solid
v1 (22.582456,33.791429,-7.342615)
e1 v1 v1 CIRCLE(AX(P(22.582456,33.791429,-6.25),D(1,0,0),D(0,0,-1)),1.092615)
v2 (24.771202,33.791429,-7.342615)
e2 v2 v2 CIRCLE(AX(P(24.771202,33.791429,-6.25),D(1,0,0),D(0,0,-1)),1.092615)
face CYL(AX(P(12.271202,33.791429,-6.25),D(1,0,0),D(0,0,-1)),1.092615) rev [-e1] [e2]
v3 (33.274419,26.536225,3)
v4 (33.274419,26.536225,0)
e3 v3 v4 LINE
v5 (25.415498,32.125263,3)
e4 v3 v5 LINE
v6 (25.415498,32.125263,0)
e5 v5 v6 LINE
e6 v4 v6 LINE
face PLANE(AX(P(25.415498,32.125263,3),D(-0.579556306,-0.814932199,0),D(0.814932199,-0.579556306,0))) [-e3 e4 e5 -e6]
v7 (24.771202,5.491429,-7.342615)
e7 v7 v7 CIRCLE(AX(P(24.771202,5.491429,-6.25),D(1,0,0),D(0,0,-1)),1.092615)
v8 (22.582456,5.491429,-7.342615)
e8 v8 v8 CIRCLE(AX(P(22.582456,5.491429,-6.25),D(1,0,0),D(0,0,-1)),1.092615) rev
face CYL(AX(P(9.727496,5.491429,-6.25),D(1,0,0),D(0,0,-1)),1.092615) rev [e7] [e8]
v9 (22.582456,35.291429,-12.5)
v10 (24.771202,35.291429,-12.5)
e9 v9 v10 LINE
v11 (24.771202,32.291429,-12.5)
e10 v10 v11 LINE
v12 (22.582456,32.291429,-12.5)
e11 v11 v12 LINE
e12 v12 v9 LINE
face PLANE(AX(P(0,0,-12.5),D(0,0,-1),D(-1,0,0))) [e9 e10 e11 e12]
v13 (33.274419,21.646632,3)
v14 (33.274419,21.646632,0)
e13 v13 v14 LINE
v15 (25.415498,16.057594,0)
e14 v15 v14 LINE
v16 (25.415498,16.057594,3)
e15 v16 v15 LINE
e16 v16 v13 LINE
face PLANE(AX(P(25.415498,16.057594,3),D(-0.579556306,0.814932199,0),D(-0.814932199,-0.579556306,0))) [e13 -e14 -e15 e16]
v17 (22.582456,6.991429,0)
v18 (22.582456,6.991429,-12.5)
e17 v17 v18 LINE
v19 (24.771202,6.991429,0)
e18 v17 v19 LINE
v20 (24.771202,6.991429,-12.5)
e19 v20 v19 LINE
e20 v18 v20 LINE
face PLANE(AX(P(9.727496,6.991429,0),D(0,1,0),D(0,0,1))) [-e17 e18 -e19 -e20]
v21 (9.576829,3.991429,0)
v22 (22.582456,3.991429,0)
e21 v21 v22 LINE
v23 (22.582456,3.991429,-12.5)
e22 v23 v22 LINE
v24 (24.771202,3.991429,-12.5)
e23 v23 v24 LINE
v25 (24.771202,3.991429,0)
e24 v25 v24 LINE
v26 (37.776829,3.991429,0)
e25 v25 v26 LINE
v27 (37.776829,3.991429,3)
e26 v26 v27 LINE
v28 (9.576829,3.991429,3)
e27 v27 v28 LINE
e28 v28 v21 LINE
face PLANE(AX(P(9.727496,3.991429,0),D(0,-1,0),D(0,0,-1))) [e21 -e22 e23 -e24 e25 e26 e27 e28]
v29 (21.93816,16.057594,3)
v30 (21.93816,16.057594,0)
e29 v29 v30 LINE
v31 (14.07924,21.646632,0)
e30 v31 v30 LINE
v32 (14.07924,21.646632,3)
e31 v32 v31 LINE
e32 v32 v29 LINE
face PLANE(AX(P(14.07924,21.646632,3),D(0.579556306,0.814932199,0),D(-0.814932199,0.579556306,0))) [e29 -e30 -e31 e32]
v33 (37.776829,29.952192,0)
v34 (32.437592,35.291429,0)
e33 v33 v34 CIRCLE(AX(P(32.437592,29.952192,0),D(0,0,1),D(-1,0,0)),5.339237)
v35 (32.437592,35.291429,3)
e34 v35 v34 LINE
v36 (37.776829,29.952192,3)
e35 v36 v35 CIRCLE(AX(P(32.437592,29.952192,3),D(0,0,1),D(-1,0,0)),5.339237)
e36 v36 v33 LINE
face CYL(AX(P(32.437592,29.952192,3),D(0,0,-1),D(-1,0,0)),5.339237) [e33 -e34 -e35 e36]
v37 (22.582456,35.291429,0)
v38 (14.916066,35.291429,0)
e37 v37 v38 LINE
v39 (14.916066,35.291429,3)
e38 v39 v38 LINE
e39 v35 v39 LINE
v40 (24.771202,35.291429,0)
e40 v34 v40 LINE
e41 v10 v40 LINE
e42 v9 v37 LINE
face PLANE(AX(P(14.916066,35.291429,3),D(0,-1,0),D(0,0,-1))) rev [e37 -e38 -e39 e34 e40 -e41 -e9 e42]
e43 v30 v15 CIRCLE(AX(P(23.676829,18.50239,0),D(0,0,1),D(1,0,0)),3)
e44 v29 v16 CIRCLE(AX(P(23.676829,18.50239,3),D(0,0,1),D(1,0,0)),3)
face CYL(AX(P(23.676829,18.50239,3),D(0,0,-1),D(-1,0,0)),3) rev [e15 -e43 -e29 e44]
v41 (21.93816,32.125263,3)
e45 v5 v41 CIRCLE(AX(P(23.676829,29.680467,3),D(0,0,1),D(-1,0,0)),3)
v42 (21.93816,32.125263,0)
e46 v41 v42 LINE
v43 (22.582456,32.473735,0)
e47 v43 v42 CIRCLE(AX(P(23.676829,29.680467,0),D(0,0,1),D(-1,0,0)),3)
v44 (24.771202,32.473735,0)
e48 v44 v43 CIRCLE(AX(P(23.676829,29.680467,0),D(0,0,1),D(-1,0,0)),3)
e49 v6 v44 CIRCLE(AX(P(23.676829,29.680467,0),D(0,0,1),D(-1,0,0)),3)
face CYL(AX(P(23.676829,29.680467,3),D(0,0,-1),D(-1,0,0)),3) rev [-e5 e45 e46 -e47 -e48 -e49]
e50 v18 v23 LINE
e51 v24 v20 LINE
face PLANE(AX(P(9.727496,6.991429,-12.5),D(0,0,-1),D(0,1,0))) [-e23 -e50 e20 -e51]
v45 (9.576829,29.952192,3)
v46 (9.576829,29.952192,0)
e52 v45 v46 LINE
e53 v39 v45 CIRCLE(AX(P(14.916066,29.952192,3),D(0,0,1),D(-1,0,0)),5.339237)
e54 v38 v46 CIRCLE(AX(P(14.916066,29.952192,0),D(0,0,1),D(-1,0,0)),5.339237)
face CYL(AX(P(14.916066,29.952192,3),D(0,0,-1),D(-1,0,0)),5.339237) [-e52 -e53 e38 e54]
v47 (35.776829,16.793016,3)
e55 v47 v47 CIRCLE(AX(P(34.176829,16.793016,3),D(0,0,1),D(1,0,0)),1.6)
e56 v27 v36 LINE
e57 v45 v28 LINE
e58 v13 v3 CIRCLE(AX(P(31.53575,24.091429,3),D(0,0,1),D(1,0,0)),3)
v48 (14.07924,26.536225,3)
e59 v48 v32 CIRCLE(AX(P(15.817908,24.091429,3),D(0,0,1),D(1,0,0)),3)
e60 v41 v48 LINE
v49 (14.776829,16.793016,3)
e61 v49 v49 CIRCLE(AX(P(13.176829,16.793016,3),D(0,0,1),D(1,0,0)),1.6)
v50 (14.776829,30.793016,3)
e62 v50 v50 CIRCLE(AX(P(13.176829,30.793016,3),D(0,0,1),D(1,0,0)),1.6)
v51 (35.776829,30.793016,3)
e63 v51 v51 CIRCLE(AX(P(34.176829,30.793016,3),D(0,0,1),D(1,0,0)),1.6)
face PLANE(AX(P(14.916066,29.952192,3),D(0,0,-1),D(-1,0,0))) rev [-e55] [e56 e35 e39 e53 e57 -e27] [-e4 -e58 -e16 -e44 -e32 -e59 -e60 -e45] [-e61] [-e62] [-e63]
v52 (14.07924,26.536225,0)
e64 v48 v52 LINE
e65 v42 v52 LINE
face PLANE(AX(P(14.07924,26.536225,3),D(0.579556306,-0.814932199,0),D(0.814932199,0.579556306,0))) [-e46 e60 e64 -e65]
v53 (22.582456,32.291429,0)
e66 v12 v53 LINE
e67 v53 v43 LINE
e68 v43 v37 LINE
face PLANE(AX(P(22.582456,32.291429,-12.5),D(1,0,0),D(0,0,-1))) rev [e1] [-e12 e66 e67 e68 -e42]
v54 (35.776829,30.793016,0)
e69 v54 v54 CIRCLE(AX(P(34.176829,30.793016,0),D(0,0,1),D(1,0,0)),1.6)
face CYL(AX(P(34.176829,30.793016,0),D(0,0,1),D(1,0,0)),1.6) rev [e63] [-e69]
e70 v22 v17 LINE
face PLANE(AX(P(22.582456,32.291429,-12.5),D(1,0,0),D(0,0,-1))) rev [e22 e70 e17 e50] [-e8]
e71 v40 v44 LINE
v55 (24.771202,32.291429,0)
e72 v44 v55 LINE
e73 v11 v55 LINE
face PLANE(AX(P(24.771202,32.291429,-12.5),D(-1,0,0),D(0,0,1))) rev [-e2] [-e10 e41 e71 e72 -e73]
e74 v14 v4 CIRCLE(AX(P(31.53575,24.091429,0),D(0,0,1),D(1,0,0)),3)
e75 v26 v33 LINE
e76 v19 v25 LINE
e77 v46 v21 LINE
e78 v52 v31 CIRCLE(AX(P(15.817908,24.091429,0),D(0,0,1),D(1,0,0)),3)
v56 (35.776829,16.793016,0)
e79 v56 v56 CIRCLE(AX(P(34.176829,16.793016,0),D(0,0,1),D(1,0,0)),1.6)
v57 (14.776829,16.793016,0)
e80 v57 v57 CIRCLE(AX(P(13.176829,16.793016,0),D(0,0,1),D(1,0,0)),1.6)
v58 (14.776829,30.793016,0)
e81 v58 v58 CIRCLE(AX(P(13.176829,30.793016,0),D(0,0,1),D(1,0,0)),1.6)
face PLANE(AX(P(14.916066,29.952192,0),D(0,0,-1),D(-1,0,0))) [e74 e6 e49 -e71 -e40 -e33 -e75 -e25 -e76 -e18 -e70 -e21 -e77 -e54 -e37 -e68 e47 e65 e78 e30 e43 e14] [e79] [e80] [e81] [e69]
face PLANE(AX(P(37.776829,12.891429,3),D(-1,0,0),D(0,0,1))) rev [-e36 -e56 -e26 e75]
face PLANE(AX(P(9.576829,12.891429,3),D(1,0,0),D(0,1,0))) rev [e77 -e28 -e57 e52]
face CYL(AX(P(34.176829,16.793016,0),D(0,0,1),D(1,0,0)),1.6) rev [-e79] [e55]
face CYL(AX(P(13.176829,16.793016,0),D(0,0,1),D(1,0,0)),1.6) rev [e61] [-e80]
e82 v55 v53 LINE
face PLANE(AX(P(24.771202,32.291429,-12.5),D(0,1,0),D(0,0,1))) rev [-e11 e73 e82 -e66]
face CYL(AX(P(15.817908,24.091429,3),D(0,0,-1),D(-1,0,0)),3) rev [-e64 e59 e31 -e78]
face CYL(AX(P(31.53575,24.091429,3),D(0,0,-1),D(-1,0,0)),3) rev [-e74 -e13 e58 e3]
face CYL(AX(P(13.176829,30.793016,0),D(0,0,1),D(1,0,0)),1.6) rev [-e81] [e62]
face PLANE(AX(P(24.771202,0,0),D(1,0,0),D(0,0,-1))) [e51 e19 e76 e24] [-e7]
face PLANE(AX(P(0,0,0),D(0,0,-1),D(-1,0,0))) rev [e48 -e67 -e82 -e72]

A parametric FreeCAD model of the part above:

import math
import FreeCAD as App
import Part
import Sketcher
from FreeCAD import Vector
Q = App.Units.Quantity

doc = App.newDocument("Part")
params = doc.addObject("Spreadsheet::Sheet", "Params")
for row, (alias, value) in enumerate([
    ("sketch1_radius", "3 mm"),
    ("sketch1_width", "28.2 mm"),
    ("pad1_length", "3 mm"),
    ("sketch2_diameter", "3.2 mm"),
    ("pocket1_length", "3 mm"),
    ("sketch3_height", "3 mm"),
    ("pad2_length", "12.5 mm"),
    ("pocket2_length", "12.5 mm"),
    ("sketch5_width", "3 mm"),
    ("sketch5_height", "12.5 mm"),
    ("pad3_length", "2.188746 mm"),
    ("sketch6_height", "3 mm"),
    ("sketch6_width", "28.2 mm"),
    ("pad4_length", "8.9 mm"),
], start=1):
    params.set(f"A{row}", alias)
    params.set(f"B{row}", "=" + value)
    params.setAlias(f"B{row}", alias)

body = doc.addObject("PartDesign::Body", "Body")

# Sketch on XY plane
sketch1 = body.newObject("Sketcher::SketchObject", "Sketch")
sketch1.AttachmentSupport = (doc.getObject("XY_Plane"), [""])
sketch1.MapMode = "FlatFace"
sketch1.addGeometry(Part.LineSegment(Vector(9.6, 12.9, 0), Vector(37.8, 12.9, 0)), False)
sketch1.addGeometry(Part.LineSegment(Vector(37.8, 12.9, 0), Vector(37.8, 30, 0)), False)
sketch1.addGeometry(Part.ArcOfCircle(Part.Circle(Vector(32.4, 30, 0), Vector(0, 0, 1), 5.3), math.radians(0), math.radians(90)), False)
sketch1.addGeometry(Part.LineSegment(Vector(32.4, 35.3, 0), Vector(14.9, 35.3, 0)), False)
sketch1.addGeometry(Part.ArcOfCircle(Part.Circle(Vector(14.9, 30, 0), Vector(0, 0, 1), 5.3), math.radians(90), math.radians(180)), False)
sketch1.addGeometry(Part.LineSegment(Vector(9.6, 30, 0), Vector(9.6, 12.9, 0)), False)
sketch1.addGeometry(Part.LineSegment(Vector(21.9, 16.1, 0), Vector(14.1, 21.6, 0)), False)
sketch1.addGeometry(Part.ArcOfCircle(Part.Circle(Vector(15.8, 24.1, 0), Vector(0, 0, 1), 3), math.radians(125), math.radians(235)), False)
sketch1.addGeometry(Part.LineSegment(Vector(14.1, 26.5, 0), Vector(21.9, 32.1, 0)), False)
sketch1.addGeometry(Part.ArcOfCircle(Part.Circle(Vector(23.7, 29.7, 0), Vector(0, 0, 1), 3), math.radians(55), math.radians(125)), False)
sketch1.addGeometry(Part.LineSegment(Vector(25.4, 32.1, 0), Vector(33.3, 26.5, 0)), False)
sketch1.addGeometry(Part.ArcOfCircle(Part.Circle(Vector(31.5, 24.1, 0), Vector(0, 0, 1), 3), math.radians(-55), math.radians(55)), False)
sketch1.addGeometry(Part.LineSegment(Vector(33.3, 21.6, 0), Vector(25.4, 16.1, 0)), False)
sketch1.addGeometry(Part.ArcOfCircle(Part.Circle(Vector(23.7, 18.5, 0), Vector(0, 0, 1), 3), math.radians(-125), math.radians(-55)), False)
sketch1.addConstraint(Sketcher.Constraint("Coincident", 0, 2, 1, 1))
sketch1.addConstraint(Sketcher.Constraint("Tangent", 1, 2, 2, 1))
sketch1.addConstraint(Sketcher.Constraint("Tangent", 2, 2, 3, 1))
sketch1.addConstraint(Sketcher.Constraint("Tangent", 3, 2, 4, 1))
sketch1.addConstraint(Sketcher.Constraint("Tangent", 4, 2, 5, 1))
sketch1.addConstraint(Sketcher.Constraint("Coincident", 5, 2, 0, 1))
sketch1.addConstraint(Sketcher.Constraint("Tangent", 6, 2, 7, 2))
sketch1.addConstraint(Sketcher.Constraint("Tangent", 7, 1, 8, 1))
sketch1.addConstraint(Sketcher.Constraint("Tangent", 8, 2, 9, 2))
sketch1.addConstraint(Sketcher.Constraint("Tangent", 9, 1, 10, 1))
sketch1.addConstraint(Sketcher.Constraint("Tangent", 10, 2, 11, 2))
sketch1.addConstraint(Sketcher.Constraint("Tangent", 11, 1, 12, 1))
sketch1.addConstraint(Sketcher.Constraint("Tangent", 12, 2, 13, 2))
sketch1.addConstraint(Sketcher.Constraint("Tangent", 13, 1, 6, 1))
sketch1.addConstraint(Sketcher.Constraint("Horizontal", 0))
sketch1.addConstraint(Sketcher.Constraint("Vertical", 1))
sketch1.addConstraint(Sketcher.Constraint("Horizontal", 3))
sketch1.addConstraint(Sketcher.Constraint("Vertical", 5))
sketch1.addConstraint(Sketcher.Constraint("Equal", 2, 4))
sketch1.addConstraint(Sketcher.Constraint("Equal", 7, 9))
sketch1.addConstraint(Sketcher.Constraint("Equal", 9, 11))
sketch1.addConstraint(Sketcher.Constraint("Equal", 11, 13))
sketch1.addConstraint(Sketcher.Constraint("Parallel", 6, 10))
sketch1.addConstraint(Sketcher.Constraint("Parallel", 8, 12))
sketch1.addConstraint(Sketcher.Constraint("Horizontal", 7, 3, 11, 3))
sketch1.addConstraint(Sketcher.Constraint("Horizontal", 8, 2, 9, 1))
sketch1.addConstraint(Sketcher.Constraint("Radius", 7, Q("3 mm")))
sketch1.addConstraint(Sketcher.Constraint("DistanceX", 0, 1, 0, 2, Q("28.2 mm")))
sketch1.addConstraint(Sketcher.Constraint("DistanceY", 0, 2, 11, 3, Q("11.2 mm")))
sketch1.addConstraint(Sketcher.Constraint("DistanceX", 13, 3, 0, 2, Q("14.1 mm")))
sketch1.addConstraint(Sketcher.Constraint("DistanceY", 11, 3, 2, 2, Q("11.2 mm")))
sketch1.addConstraint(Sketcher.Constraint("Radius", 2, Q("5.339237 mm")))
sketch1.addConstraint(Sketcher.Constraint("DistanceX", -1, 1, 9, 1, Q("25.415498 mm")))
sketch1.addConstraint(Sketcher.Constraint("DistanceY", 13, 3, 4, 3, Q("11.449801 mm")))
sketch1.addConstraint(Sketcher.Constraint("Distance", 6, Q("9.64365 mm")))
sketch1.addConstraint(Sketcher.Constraint("DistanceY", -1, 1, 2, 3, Q("29.952192 mm")))
sketch1.setExpression("Constraints[26]", "Params.sketch1_radius")
sketch1.setExpression("Constraints[27]", "Params.sketch1_width")
pad1 = body.newObject("PartDesign::Pad", "Pad")
pad1.Profile = sketch1
pad1.setExpression("Length", "Params.pad1_length")

# Sketch on XY plane
sketch2 = body.newObject("Sketcher::SketchObject", "Sketch001")
sketch2.AttachmentSupport = (doc.getObject("XY_Plane"), [""])
sketch2.MapMode = "FlatFace"
sketch2.AttachmentOffset = App.Placement(Vector(0, 0, 3), App.Rotation())
sketch2.addGeometry(Part.Circle(Vector(13.2, 30.8, 0), Vector(0, 0, 1), 1.6), False)
sketch2.addGeometry(Part.Circle(Vector(34.2, 30.8, 0), Vector(0, 0, 1), 1.6), False)
sketch2.addGeometry(Part.Circle(Vector(13.2, 16.8, 0), Vector(0, 0, 1), 1.6), False)
sketch2.addGeometry(Part.Circle(Vector(34.2, 16.8, 0), Vector(0, 0, 1), 1.6), False)
sketch2.addConstraint(Sketcher.Constraint("Equal", 0, 1))
sketch2.addConstraint(Sketcher.Constraint("Equal", 1, 2))
sketch2.addConstraint(Sketcher.Constraint("Equal", 2, 3))
sketch2.addConstraint(Sketcher.Constraint("Horizontal", 0, 3, 1, 3))
sketch2.addConstraint(Sketcher.Constraint("Horizontal", 2, 3, 3, 3))
sketch2.addConstraint(Sketcher.Constraint("Vertical", 0, 3, 2, 3))
sketch2.addConstraint(Sketcher.Constraint("Vertical", 1, 3, 3, 3))
sketch2.addConstraint(Sketcher.Constraint("Diameter", 0, Q("3.2 mm")))
sketch2.addConstraint(Sketcher.Constraint("DistanceX", 0, 3, 1, 3, Q("21 mm")))
sketch2.addConstraint(Sketcher.Constraint("DistanceY", 2, 3, 0, 3, Q("14 mm")))
sketch2.addConstraint(Sketcher.Constraint("DistanceX", -1, 1, 0, 3, Q("13.176829 mm")))
sketch2.addConstraint(Sketcher.Constraint("DistanceY", -1, 1, 0, 3, Q("30.793016 mm")))
sketch2.setExpression("Constraints[7]", "Params.sketch2_diameter")
pocket1 = body.newObject("PartDesign::Pocket", "Pocket")
pocket1.Profile = sketch2
pocket1.setExpression("Length", "Params.pocket1_length")

# Sketch on XY plane
sketch3 = body.newObject("Sketcher::SketchObject", "Sketch002")
sketch3.AttachmentSupport = (doc.getObject("XY_Plane"), [""])
sketch3.MapMode = "FlatFace"
sketch3.addGeometry(Part.LineSegment(Vector(24.8, 35.3, 0), Vector(24.8, 32.3, 0)), False)
sketch3.addGeometry(Part.LineSegment(Vector(24.8, 32.3, 0), Vector(22.6, 32.3, 0)), False)
sketch3.addGeometry(Part.LineSegment(Vector(22.6, 32.3, 0), Vector(22.6, 35.3, 0)), False)
sketch3.addGeometry(Part.LineSegment(Vector(22.6, 35.3, 0), Vector(24.8, 35.3, 0)), False)
sketch3.addConstraint(Sketcher.Constraint("Coincident", 0, 2, 1, 1))
sketch3.addConstraint(Sketcher.Constraint("Coincident", 1, 2, 2, 1))
sketch3.addConstraint(Sketcher.Constraint("Coincident", 2, 2, 3, 1))
sketch3.addConstraint(Sketcher.Constraint("Coincident", 3, 2, 0, 1))
sketch3.addConstraint(Sketcher.Constraint("Vertical", 0))
sketch3.addConstraint(Sketcher.Constraint("Horizontal", 1))
sketch3.addConstraint(Sketcher.Constraint("Vertical", 2))
sketch3.addConstraint(Sketcher.Constraint("Horizontal", 3))
sketch3.addConstraint(Sketcher.Constraint("DistanceY", 0, 2, 0, 1, Q("3 mm")))
sketch3.addConstraint(Sketcher.Constraint("DistanceX", 1, 2, 1, 1, Q("2.188746 mm")))
sketch3.addConstraint(Sketcher.Constraint("DistanceY", -1, 1, 0, 2, Q("32.291429 mm")))
sketch3.addConstraint(Sketcher.Constraint("DistanceX", -1, 1, 0, 2, Q("24.771202 mm")))
sketch3.setExpression("Constraints[8]", "Params.sketch3_height")
pad2 = body.newObject("PartDesign::Pad", "Pad001")
pad2.Profile = sketch3
pad2.setExpression("Length", "Params.pad2_length")
pad2.Reversed = True

# Sketch on YZ plane
sketch4 = body.newObject("Sketcher::SketchObject", "Sketch003")
sketch4.AttachmentSupport = (doc.getObject("YZ_Plane"), [""])
sketch4.MapMode = "FlatFace"
sketch4.AttachmentOffset = App.Placement(Vector(0, 0, 24.771202), App.Rotation())
sketch4.addGeometry(Part.Circle(Vector(33.8, -6.2, 0), Vector(0, 0, 1), 1.1), False)
sketch4.addConstraint(Sketcher.Constraint("Diameter", 0, Q("2.185231 mm")))
sketch4.addConstraint(Sketcher.Constraint("DistanceY", 0, 3, -1, 1, Q("6.25 mm")))
sketch4.addConstraint(Sketcher.Constraint("DistanceX", -1, 1, 0, 3, Q("33.791429 mm")))
pocket2 = body.newObject("PartDesign::Pocket", "Pocket001")
pocket2.Profile = sketch4
pocket2.setExpression("Length", "Params.pocket2_length")
body2 = doc.addObject("PartDesign::Body", "Body001")

# Sketch on YZ plane
sketch5 = body2.newObject("Sketcher::SketchObject", "Sketch004")
sketch5.AttachmentSupport = (doc.getObject("YZ_Plane001"), [""])
sketch5.MapMode = "FlatFace"
sketch5.AttachmentOffset = App.Placement(Vector(0, 0, 24.771202), App.Rotation())
sketch5.addGeometry(Part.LineSegment(Vector(7, 0, 0), Vector(4, 0, 0)), False)
sketch5.addGeometry(Part.LineSegment(Vector(4, 0, 0), Vector(4, -12.5, 0)), False)
sketch5.addGeometry(Part.LineSegment(Vector(4, -12.5, 0), Vector(7, -12.5, 0)), False)
sketch5.addGeometry(Part.LineSegment(Vector(7, -12.5, 0), Vector(7, 0, 0)), False)
sketch5.addGeometry(Part.Circle(Vector(5.5, -6.2, 0), Vector(0, 0, 1), 1.1), False)
sketch5.addConstraint(Sketcher.Constraint("Coincident", 0, 2, 1, 1))
sketch5.addConstraint(Sketcher.Constraint("Coincident", 1, 2, 2, 1))
sketch5.addConstraint(Sketcher.Constraint("Coincident", 2, 2, 3, 1))
sketch5.addConstraint(Sketcher.Constraint("Coincident", 3, 2, 0, 1))
sketch5.addConstraint(Sketcher.Constraint("Horizontal", 0))
sketch5.addConstraint(Sketcher.Constraint("Vertical", 1))
sketch5.addConstraint(Sketcher.Constraint("Horizontal", 2))
sketch5.addConstraint(Sketcher.Constraint("Vertical", 3))
sketch5.addConstraint(Sketcher.Constraint("PointOnObject", 0, 2, -1))
sketch5.addConstraint(Sketcher.Constraint("DistanceX", 0, 2, 0, 1, Q("3 mm")))
sketch5.addConstraint(Sketcher.Constraint("DistanceY", 1, 2, 1, 1, Q("12.5 mm")))
sketch5.addConstraint(Sketcher.Constraint("DistanceX", 0, 2, 4, 3, Q("1.5 mm")))
sketch5.addConstraint(Sketcher.Constraint("Diameter", 4, Q("2.185231 mm")))
sketch5.addConstraint(Sketcher.Constraint("DistanceY", 4, 3, -1, 1, Q("6.25 mm")))
sketch5.addConstraint(Sketcher.Constraint("DistanceX", -1, 1, 4, 3, Q("5.491429 mm")))
sketch5.setExpression("Constraints[9]", "Params.sketch5_width")
sketch5.setExpression("Constraints[10]", "Params.sketch5_height")
pad3 = body2.newObject("PartDesign::Pad", "Pad002")
pad3.Profile = sketch5
pad3.setExpression("Length", "Params.pad3_length")
pad3.Reversed = True
body.AllowCompound = True
doc.recompute()

boolean = body.newObject("PartDesign::Boolean", "Boolean")
boolean.Type = "Fuse"
boolean.addObjects([body2])

# Sketch on XZ plane
sketch6 = body.newObject("Sketcher::SketchObject", "Sketch005")
sketch6.AttachmentSupport = (doc.getObject("XZ_Plane"), [""])
sketch6.MapMode = "FlatFace"
sketch6.AttachmentOffset = App.Placement(Vector(0, 0, -12.891429), App.Rotation())
sketch6.addGeometry(Part.LineSegment(Vector(9.6, 3, 0), Vector(9.6, 0, 0)), False)
sketch6.addGeometry(Part.LineSegment(Vector(9.6, 0, 0), Vector(37.8, 0, 0)), False)
sketch6.addGeometry(Part.LineSegment(Vector(37.8, 0, 0), Vector(37.8, 3, 0)), False)
sketch6.addGeometry(Part.LineSegment(Vector(37.8, 3, 0), Vector(9.6, 3, 0)), False)
sketch6.addConstraint(Sketcher.Constraint("Coincident", 0, 2, 1, 1))
sketch6.addConstraint(Sketcher.Constraint("Coincident", 1, 2, 2, 1))
sketch6.addConstraint(Sketcher.Constraint("Coincident", 2, 2, 3, 1))
sketch6.addConstraint(Sketcher.Constraint("Coincident", 3, 2, 0, 1))
sketch6.addConstraint(Sketcher.Constraint("Vertical", 0))
sketch6.addConstraint(Sketcher.Constraint("Horizontal", 1))
sketch6.addConstraint(Sketcher.Constraint("Vertical", 2))
sketch6.addConstraint(Sketcher.Constraint("Horizontal", 3))
sketch6.addConstraint(Sketcher.Constraint("PointOnObject", 0, 2, -1))
sketch6.addConstraint(Sketcher.Constraint("DistanceY", 0, 2, 0, 1, Q("3 mm")))
sketch6.addConstraint(Sketcher.Constraint("DistanceX", 1, 1, 1, 2, Q("28.2 mm")))
sketch6.addConstraint(Sketcher.Constraint("DistanceX", -1, 1, 0, 2, Q("9.576829 mm")))
sketch6.setExpression("Constraints[9]", "Params.sketch6_height")
sketch6.setExpression("Constraints[10]", "Params.sketch6_width")
pad4 = body.newObject("PartDesign::Pad", "Pad003")
pad4.Profile = sketch6
pad4.setExpression("Length", "Params.pad4_length")

doc.recompute()
